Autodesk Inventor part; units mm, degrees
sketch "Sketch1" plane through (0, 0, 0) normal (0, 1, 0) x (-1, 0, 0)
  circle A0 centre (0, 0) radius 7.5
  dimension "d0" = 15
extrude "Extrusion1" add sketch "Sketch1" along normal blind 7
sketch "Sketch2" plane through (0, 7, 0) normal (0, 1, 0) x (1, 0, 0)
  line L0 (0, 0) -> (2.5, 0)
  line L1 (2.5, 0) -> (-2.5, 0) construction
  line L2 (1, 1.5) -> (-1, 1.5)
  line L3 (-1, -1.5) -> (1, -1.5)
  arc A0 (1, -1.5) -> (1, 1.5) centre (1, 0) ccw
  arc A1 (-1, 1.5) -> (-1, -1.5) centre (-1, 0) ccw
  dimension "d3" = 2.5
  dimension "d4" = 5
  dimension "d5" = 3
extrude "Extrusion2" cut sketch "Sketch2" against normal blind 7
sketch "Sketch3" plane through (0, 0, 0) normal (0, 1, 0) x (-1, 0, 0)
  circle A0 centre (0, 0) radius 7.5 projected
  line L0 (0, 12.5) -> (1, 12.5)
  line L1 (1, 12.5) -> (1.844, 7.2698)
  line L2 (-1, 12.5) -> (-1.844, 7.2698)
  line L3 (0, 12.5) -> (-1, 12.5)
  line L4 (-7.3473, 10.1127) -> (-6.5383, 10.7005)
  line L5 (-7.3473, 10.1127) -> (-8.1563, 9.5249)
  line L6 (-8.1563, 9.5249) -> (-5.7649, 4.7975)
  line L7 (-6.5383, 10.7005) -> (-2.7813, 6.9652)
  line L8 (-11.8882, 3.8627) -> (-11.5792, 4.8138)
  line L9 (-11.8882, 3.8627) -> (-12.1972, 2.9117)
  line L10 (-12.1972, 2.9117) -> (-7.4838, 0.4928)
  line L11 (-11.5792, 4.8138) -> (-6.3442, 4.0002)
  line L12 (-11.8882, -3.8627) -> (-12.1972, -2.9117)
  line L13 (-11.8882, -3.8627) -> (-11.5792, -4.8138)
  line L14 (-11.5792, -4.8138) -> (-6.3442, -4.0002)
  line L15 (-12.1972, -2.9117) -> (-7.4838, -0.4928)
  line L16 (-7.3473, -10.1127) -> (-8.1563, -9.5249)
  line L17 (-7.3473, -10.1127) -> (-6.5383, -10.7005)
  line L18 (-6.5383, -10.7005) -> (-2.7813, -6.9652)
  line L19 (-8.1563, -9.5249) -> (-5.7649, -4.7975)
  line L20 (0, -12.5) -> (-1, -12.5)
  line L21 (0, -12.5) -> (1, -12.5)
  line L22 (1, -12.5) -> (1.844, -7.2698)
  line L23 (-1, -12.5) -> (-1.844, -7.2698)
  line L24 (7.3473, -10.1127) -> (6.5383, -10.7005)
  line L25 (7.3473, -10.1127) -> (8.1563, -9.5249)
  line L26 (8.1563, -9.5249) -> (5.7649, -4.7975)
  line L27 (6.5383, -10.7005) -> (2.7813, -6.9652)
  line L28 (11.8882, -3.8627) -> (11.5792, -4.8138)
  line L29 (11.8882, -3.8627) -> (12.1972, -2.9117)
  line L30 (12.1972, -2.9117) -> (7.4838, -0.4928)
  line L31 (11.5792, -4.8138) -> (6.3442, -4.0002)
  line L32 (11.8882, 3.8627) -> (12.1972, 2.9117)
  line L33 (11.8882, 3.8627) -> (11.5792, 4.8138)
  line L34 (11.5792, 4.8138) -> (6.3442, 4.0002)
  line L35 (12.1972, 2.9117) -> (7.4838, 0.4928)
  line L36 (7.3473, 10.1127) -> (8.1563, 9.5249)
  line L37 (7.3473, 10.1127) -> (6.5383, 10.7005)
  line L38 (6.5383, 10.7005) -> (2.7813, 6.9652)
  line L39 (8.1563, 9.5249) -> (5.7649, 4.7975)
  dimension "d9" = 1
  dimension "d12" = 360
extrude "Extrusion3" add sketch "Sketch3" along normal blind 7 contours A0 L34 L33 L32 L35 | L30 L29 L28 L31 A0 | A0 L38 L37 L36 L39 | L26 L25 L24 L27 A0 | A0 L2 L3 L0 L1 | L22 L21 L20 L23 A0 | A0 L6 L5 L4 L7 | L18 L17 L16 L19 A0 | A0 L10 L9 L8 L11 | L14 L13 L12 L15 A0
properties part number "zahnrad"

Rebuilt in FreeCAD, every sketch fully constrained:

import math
import FreeCAD as App
import Part
import Sketcher

V = App.Vector
Q = App.Units.Quantity

doc = App.newDocument("Part")
body = doc.addObject("PartDesign::Body", "Body")

sketch1 = body.newObject("Sketcher::SketchObject", "Sketch")
sketch1.AttachmentSupport = (doc.getObject("XZ_Plane"), [""])
sketch1.MapMode = "FlatFace"
sketch1.addGeometry(Part.Circle(V(0, 0, 0), V(0, 0, 1), 8), False)
sketch1.addConstraint(Sketcher.Constraint("Coincident", 0, 3, -1, 1))
sketch1.addConstraint(Sketcher.Constraint("Diameter", 0, Q("15 mm")))
pad1 = body.newObject("PartDesign::Pad", "Pad")
pad1.Profile = sketch1
pad1.Length = 7
pad1.Reversed = True

sketch2 = body.newObject("Sketcher::SketchObject", "Sketch001")
sketch2.AttachmentSupport = (doc.getObject("XZ_Plane"), [""])
sketch2.MapMode = "FlatFace"
sketch2.AttachmentOffset = App.Placement(V(0, 0, -7), App.Rotation())
sketch2.addGeometry(Part.ArcOfCircle(Part.Circle(V(1, 0, 0), V(0, 0, 1), 1.5), math.radians(-90), math.radians(90)), False)
sketch2.addGeometry(Part.LineSegment(V(1, -1.5, 0), V(-1, -1.5, 0)), False)
sketch2.addGeometry(Part.ArcOfCircle(Part.Circle(V(-1, 0, 0), V(0, 0, 1), 1.5), math.radians(90), math.radians(270)), False)
sketch2.addGeometry(Part.LineSegment(V(-1, 1.5, 0), V(1, 1.5, 0)), False)
sketch2.addConstraint(Sketcher.Constraint("Tangent", 0, 1, 1, 1))
sketch2.addConstraint(Sketcher.Constraint("Tangent", 1, 2, 2, 2))
sketch2.addConstraint(Sketcher.Constraint("Tangent", 2, 1, 3, 1))
sketch2.addConstraint(Sketcher.Constraint("Tangent", 3, 2, 0, 2))
sketch2.addConstraint(Sketcher.Constraint("Horizontal", 1))
sketch2.addConstraint(Sketcher.Constraint("Horizontal", 3))
sketch2.addConstraint(Sketcher.Constraint("Symmetric", 0, 3, 2, 3, -1, 1))
sketch2.addConstraint(Sketcher.Constraint("Radius", 0, Q("1.5 mm")))
sketch2.addConstraint(Sketcher.Constraint("DistanceX", 1, 2, 1, 1, Q("2 mm")))
pocket1 = body.newObject("PartDesign::Pocket", "Pocket")
pocket1.Profile = sketch2
pocket1.Length = 7
pocket1.Reversed = True

sketch3 = body.newObject("Sketcher::SketchObject", "Sketch002")
sketch3.AttachmentSupport = (doc.getObject("XZ_Plane"), [""])
sketch3.MapMode = "FlatFace"
sketch3.addGeometry(Part.ArcOfCircle(Part.Circle(V(0, 0, 0), V(0, 0, 1), 7.5), math.radians(148), math.radians(176)), False)
sketch3.addGeometry(Part.LineSegment(V(-7.5, 0.5, 0), V(-12.2, 2.9, 0)), False)
sketch3.addGeometry(Part.LineSegment(V(-12.2, 2.9, 0), V(-11.9, 3.9, 0)), False)
sketch3.addGeometry(Part.LineSegment(V(-11.9, 3.9, 0), V(-11.6, 4.8, 0)), False)
sketch3.addGeometry(Part.LineSegment(V(-11.6, 4.8, 0), V(-6.3, 4, 0)), False)
sketch3.addGeometry(Part.LineSegment(V(-12.2, -2.9, 0), V(-7.5, -0.5, 0)), False)
sketch3.addGeometry(Part.ArcOfCircle(Part.Circle(V(0, 0, 0), V(0, 0, 1), 7.5), math.radians(-176), math.radians(-148)), False)
sketch3.addGeometry(Part.LineSegment(V(-6.3, -4, 0), V(-11.6, -4.8, 0)), False)
sketch3.addGeometry(Part.LineSegment(V(-11.6, -4.8, 0), V(-11.9, -3.9, 0)), False)
sketch3.addGeometry(Part.LineSegment(V(-11.9, -3.9, 0), V(-12.2, -2.9, 0)), False)
sketch3.addGeometry(Part.ArcOfCircle(Part.Circle(V(0, 0, 0), V(0, 0, 1), 7.5), math.radians(112), math.radians(140)), False)
sketch3.addGeometry(Part.LineSegment(V(-5.8, 4.8, 0), V(-8.2, 9.5, 0)), False)
sketch3.addGeometry(Part.LineSegment(V(-8.2, 9.5, 0), V(-6.5, 10.7, 0)), False)
sketch3.addGeometry(Part.LineSegment(V(-6.5, 10.7, 0), V(-2.8, 7, 0)), False)
sketch3.addGeometry(Part.LineSegment(V(-8.2, -9.5, 0), V(-5.8, -4.8, 0)), False)
sketch3.addGeometry(Part.ArcOfCircle(Part.Circle(V(0, 0, 0), V(0, 0, 1), 7.5), math.radians(-140), math.radians(-112)), False)
sketch3.addGeometry(Part.LineSegment(V(-2.8, -7, 0), V(-6.5, -10.7, 0)), False)
sketch3.addGeometry(Part.LineSegment(V(-6.5, -10.7, 0), V(-8.2, -9.5, 0)), False)
sketch3.addGeometry(Part.ArcOfCircle(Part.Circle(V(0, 0, 0), V(0, 0, 1), 7.5), math.radians(76), math.radians(104)), False)
sketch3.addGeometry(Part.LineSegment(V(-1.8, 7.3, 0), V(-1, 12.5, 0)), False)
sketch3.addGeometry(Part.LineSegment(V(-1, 12.5, 0), V(1, 12.5, 0)), False)
sketch3.addGeometry(Part.LineSegment(V(1, 12.5, 0), V(1.8, 7.3, 0)), False)
sketch3.addGeometry(Part.LineSegment(V(-1, -12.5, 0), V(-1.8, -7.3, 0)), False)
sketch3.addGeometry(Part.ArcOfCircle(Part.Circle(V(0, 0, 0), V(0, 0, 1), 7.5), math.radians(-104), math.radians(-76)), False)
sketch3.addGeometry(Part.LineSegment(V(1.8, -7.3, 0), V(1, -12.5, 0)), False)
sketch3.addGeometry(Part.LineSegment(V(1, -12.5, 0), V(-1, -12.5, 0)), False)
sketch3.addGeometry(Part.ArcOfCircle(Part.Circle(V(0, 0, 0), V(0, 0, 1), 7.5), math.radians(40), math.radians(68)), False)
sketch3.addGeometry(Part.LineSegment(V(2.8, 7, 0), V(6.5, 10.7, 0)), False)
sketch3.addGeometry(Part.LineSegment(V(6.5, 10.7, 0), V(8.2, 9.5, 0)), False)
sketch3.addGeometry(Part.LineSegment(V(8.2, 9.5, 0), V(5.8, 4.8, 0)), False)
sketch3.addGeometry(Part.LineSegment(V(6.5, -10.7, 0), V(2.8, -7, 0)), False)
sketch3.addGeometry(Part.ArcOfCircle(Part.Circle(V(0, 0, 0), V(0, 0, 1), 7.5), math.radians(-68), math.radians(-40)), False)
sketch3.addGeometry(Part.LineSegment(V(5.8, -4.8, 0), V(8.2, -9.5, 0)), False)
sketch3.addGeometry(Part.LineSegment(V(8.2, -9.5, 0), V(6.5, -10.7, 0)), False)
sketch3.addGeometry(Part.ArcOfCircle(Part.Circle(V(0, 0, 0), V(0, 0, 1), 7.5), math.radians(4), math.radians(32)), False)
sketch3.addGeometry(Part.LineSegment(V(6.3, 4, 0), V(11.6, 4.8, 0)), False)
sketch3.addGeometry(Part.LineSegment(V(11.6, 4.8, 0), V(11.9, 3.9, 0)), False)
sketch3.addGeometry(Part.LineSegment(V(11.9, 3.9, 0), V(12.2, 2.9, 0)), False)
sketch3.addGeometry(Part.LineSegment(V(12.2, 2.9, 0), V(7.5, 0.5, 0)), False)
sketch3.addGeometry(Part.LineSegment(V(11.6, -4.8, 0), V(6.3, -4, 0)), False)
sketch3.addGeometry(Part.ArcOfCircle(Part.Circle(V(0, 0, 0), V(0, 0, 1), 7.5), math.radians(-32), math.radians(-4)), False)
sketch3.addGeometry(Part.LineSegment(V(7.5, -0.5, 0), V(12.2, -2.9, 0)), False)
sketch3.addGeometry(Part.LineSegment(V(12.2, -2.9, 0), V(11.9, -3.9, 0)), False)
sketch3.addGeometry(Part.LineSegment(V(11.9, -3.9, 0), V(11.6, -4.8, 0)), False)
sketch3.addConstraint(Sketcher.Constraint("Coincident", 0, 2, 1, 1))
sketch3.addConstraint(Sketcher.Constraint("Coincident", 1, 2, 2, 1))
sketch3.addConstraint(Sketcher.Constraint("Coincident", 2, 2, 3, 1))
sketch3.addConstraint(Sketcher.Constraint("Coincident", 3, 2, 4, 1))
sketch3.addConstraint(Sketcher.Constraint("Coincident", 4, 2, 0, 1))
sketch3.addConstraint(Sketcher.Constraint("Coincident", 5, 2, 6, 1))
sketch3.addConstraint(Sketcher.Constraint("Coincident", 6, 2, 7, 1))
sketch3.addConstraint(Sketcher.Constraint("Coincident", 7, 2, 8, 1))
sketch3.addConstraint(Sketcher.Constraint("Coincident", 8, 2, 9, 1))
sketch3.addConstraint(Sketcher.Constraint("Coincident", 9, 2, 5, 1))
sketch3.addConstraint(Sketcher.Constraint("Coincident", 10, 2, 11, 1))
sketch3.addConstraint(Sketcher.Constraint("Coincident", 11, 2, 12, 1))
sketch3.addConstraint(Sketcher.Constraint("Coincident", 12, 2, 13, 1))
sketch3.addConstraint(Sketcher.Constraint("Coincident", 13, 2, 10, 1))
sketch3.addConstraint(Sketcher.Constraint("Coincident", 14, 2, 15, 1))
sketch3.addConstraint(Sketcher.Constraint("Coincident", 15, 2, 16, 1))
sketch3.addConstraint(Sketcher.Constraint("Coincident", 16, 2, 17, 1))
sketch3.addConstraint(Sketcher.Constraint("Coincident", 17, 2, 14, 1))
sketch3.addConstraint(Sketcher.Constraint("Coincident", 18, 2, 19, 1))
sketch3.addConstraint(Sketcher.Constraint("Coincident", 19, 2, 20, 1))
sketch3.addConstraint(Sketcher.Constraint("Coincident", 20, 2, 21, 1))
sketch3.addConstraint(Sketcher.Constraint("Coincident", 21, 2, 18, 1))
sketch3.addConstraint(Sketcher.Constraint("Coincident", 22, 2, 23, 1))
sketch3.addConstraint(Sketcher.Constraint("Coincident", 23, 2, 24, 1))
sketch3.addConstraint(Sketcher.Constraint("Coincident", 24, 2, 25, 1))
sketch3.addConstraint(Sketcher.Constraint("Coincident", 25, 2, 22, 1))
sketch3.addConstraint(Sketcher.Constraint("Coincident", 26, 2, 27, 1))
sketch3.addConstraint(Sketcher.Constraint("Coincident", 27, 2, 28, 1))
sketch3.addConstraint(Sketcher.Constraint("Coincident", 28, 2, 29, 1))
sketch3.addConstraint(Sketcher.Constraint("Coincident", 29, 2, 26, 1))
sketch3.addConstraint(Sketcher.Constraint("Coincident", 30, 2, 31, 1))
sketch3.addConstraint(Sketcher.Constraint("Coincident", 31, 2, 32, 1))
sketch3.addConstraint(Sketcher.Constraint("Coincident", 32, 2, 33, 1))
sketch3.addConstraint(Sketcher.Constraint("Coincident", 33, 2, 30, 1))
sketch3.addConstraint(Sketcher.Constraint("Coincident", 34, 2, 35, 1))
sketch3.addConstraint(Sketcher.Constraint("Coincident", 35, 2, 36, 1))
sketch3.addConstraint(Sketcher.Constraint("Coincident", 36, 2, 37, 1))
sketch3.addConstraint(Sketcher.Constraint("Coincident", 37, 2, 38, 1))
sketch3.addConstraint(Sketcher.Constraint("Coincident", 38, 2, 34, 1))
sketch3.addConstraint(Sketcher.Constraint("Coincident", 39, 2, 40, 1))
sketch3.addConstraint(Sketcher.Constraint("Coincident", 40, 2, 41, 1))
sketch3.addConstraint(Sketcher.Constraint("Coincident", 41, 2, 42, 1))
sketch3.addConstraint(Sketcher.Constraint("Coincident", 42, 2, 43, 1))
sketch3.addConstraint(Sketcher.Constraint("Coincident", 43, 2, 39, 1))
sketch3.addConstraint(Sketcher.Constraint("Horizontal", 20))
sketch3.addConstraint(Sketcher.Constraint("Horizontal", 25))
sketch3.addConstraint(Sketcher.Constraint("Coincident", 0, 3, -1, 1))
sketch3.addConstraint(Sketcher.Constraint("Coincident", 6, 3, -1, 1))
sketch3.addConstraint(Sketcher.Constraint("Coincident", 10, 3, -1, 1))
sketch3.addConstraint(Sketcher.Constraint("Coincident", 15, 3, -1, 1))
sketch3.addConstraint(Sketcher.Constraint("Coincident", 18, 3, -1, 1))
sketch3.addConstraint(Sketcher.Constraint("Coincident", 23, 3, -1, 1))
sketch3.addConstraint(Sketcher.Constraint("Coincident", 26, 3, -1, 1))
sketch3.addConstraint(Sketcher.Constraint("Coincident", 31, 3, -1, 1))
sketch3.addConstraint(Sketcher.Constraint("Coincident", 34, 3, -1, 1))
sketch3.addConstraint(Sketcher.Constraint("Coincident", 40, 3, -1, 1))
sketch3.addConstraint(Sketcher.Constraint("Equal", 0, 6))
sketch3.addConstraint(Sketcher.Constraint("Equal", 6, 10))
sketch3.addConstraint(Sketcher.Constraint("Equal", 10, 15))
sketch3.addConstraint(Sketcher.Constraint("Equal", 15, 18))
sketch3.addConstraint(Sketcher.Constraint("Equal", 18, 23))
sketch3.addConstraint(Sketcher.Constraint("Equal", 23, 26))
sketch3.addConstraint(Sketcher.Constraint("Equal", 26, 31))
sketch3.addConstraint(Sketcher.Constraint("Equal", 31, 34))
sketch3.addConstraint(Sketcher.Constraint("Equal", 34, 40))
sketch3.addConstraint(Sketcher.Constraint("Symmetric", 19, 2, 24, 2, -1, 1))
sketch3.addConstraint(Sketcher.Constraint("Symmetric", 16, 2, 27, 2, -1, 1))
sketch3.addConstraint(Sketcher.Constraint("Symmetric", 17, 2, 28, 2, -1, 1))
sketch3.addConstraint(Sketcher.Constraint("Symmetric", 11, 2, 32, 2, -1, 1))
sketch3.addConstraint(Sketcher.Constraint("Symmetric", 12, 2, 33, 2, -1, 1))
sketch3.addConstraint(Sketcher.Constraint("Symmetric", 7, 2, 35, 2, -1, 1))
sketch3.addConstraint(Sketcher.Constraint("Symmetric", 8, 2, 36, 2, -1, 1))
sketch3.addConstraint(Sketcher.Constraint("Symmetric", 9, 2, 37, 2, -1, 1))
sketch3.addConstraint(Sketcher.Constraint("Symmetric", 1, 2, 41, 2, -1, 1))
sketch3.addConstraint(Sketcher.Constraint("Symmetric", 2, 2, 42, 2, -1, 1))
sketch3.addConstraint(Sketcher.Constraint("Symmetric", 3, 2, 43, 2, -1, 1))
sketch3.addConstraint(Sketcher.Constraint("Symmetric", 12, 2, 27, 2, -2))
sketch3.addConstraint(Sketcher.Constraint("Symmetric", 11, 2, 28, 2, -2))
sketch3.addConstraint(Sketcher.Constraint("Symmetric", 3, 2, 35, 2, -2))
sketch3.addConstraint(Sketcher.Constraint("Symmetric", 2, 2, 36, 2, -2))
sketch3.addConstraint(Sketcher.Constraint("Symmetric", 1, 2, 37, 2, -2))
sketch3.addConstraint(Sketcher.Constraint("Parallel", 2, 3))
sketch3.addConstraint(Sketcher.Constraint("Parallel", 21, 22))
sketch3.addConstraint(Sketcher.Constraint("Parallel", 19, 24))
sketch3.addConstraint(Sketcher.Constraint("Parallel", 16, 27))
sketch3.addConstraint(Sketcher.Constraint("Parallel", 14, 29))
sketch3.addConstraint(Sketcher.Constraint("Parallel", 13, 30))
sketch3.addConstraint(Sketcher.Constraint("Parallel", 11, 32))
sketch3.addConstraint(Sketcher.Constraint("Parallel", 7, 35))
sketch3.addConstraint(Sketcher.Constraint("Parallel", 5, 38))
sketch3.addConstraint(Sketcher.Constraint("Parallel", 4, 39))
sketch3.addConstraint(Sketcher.Constraint("Parallel", 1, 41))
sketch3.addConstraint(Sketcher.Constraint("Horizontal", 18, 2, 21, 2))
sketch3.addConstraint(Sketcher.Constraint("Horizontal", 22, 2, 23, 2))
sketch3.addConstraint(Sketcher.Constraint("Horizontal", 13, 2, 26, 2))
sketch3.addConstraint(Sketcher.Constraint("Horizontal", 10, 2, 29, 2))
sketch3.addConstraint(Sketcher.Constraint("Horizontal", 4, 2, 34, 2))
sketch3.addConstraint(Sketcher.Constraint("Horizontal", 0, 2, 38, 2))
sketch3.addConstraint(Sketcher.Constraint("Vertical", 20, 2, 24, 2))
sketch3.addConstraint(Sketcher.Constraint("Equal", 2, 3))
sketch3.addConstraint(Sketcher.Constraint("Equal", 1, 4))
sketch3.addConstraint(Sketcher.Constraint("Equal", 7, 11))
sketch3.addConstraint(Sketcher.Constraint("Equal", 11, 13))
sketch3.addConstraint(Sketcher.Constraint("Equal", 16, 19))
sketch3.addConstraint(Sketcher.Constraint("Distance", 2, Q("1 mm")))
sketch3.addConstraint(Sketcher.Constraint("DistanceX", 19, 2, -1, 1, Q("1 mm")))
sketch3.addConstraint(Sketcher.Constraint("Radius", 0, Q("7.5 mm")))
sketch3.addConstraint(Sketcher.Constraint("Angle", 2, Q("72 deg")))
sketch3.addConstraint(Sketcher.Constraint("Distance", 12, Q("2 mm")))
sketch3.addConstraint(Sketcher.Constraint("DistanceY", -1, 1, 19, 2, Q("12.5 mm")))
sketch3.addConstraint(Sketcher.Constraint("DistanceY", 0, 2, 2, 2, Q("3.37 mm")))
sketch3.addConstraint(Sketcher.Constraint("DistanceX", 2, 2, 12, 2, Q("5.35 mm")))
sketch3.addConstraint(Sketcher.Constraint("DistanceX", 10, 2, -1, 1, Q("5.765 mm")))
sketch3.addConstraint(Sketcher.Constraint("DistanceY", -1, 1, 11, 2, Q("9.525 mm")))
sketch3.addConstraint(Sketcher.Constraint("DistanceX", 18, 2, -1, 1, Q("1.844 mm")))
sketch3.addConstraint(Sketcher.Constraint("DistanceX", 3, 2, 4, 2, Q("5.235 mm")))
pad2 = body.newObject("PartDesign::Pad", "Pad001")
pad2.Profile = sketch3
pad2.Length = 7
pad2.Reversed = True

doc.recompute()
